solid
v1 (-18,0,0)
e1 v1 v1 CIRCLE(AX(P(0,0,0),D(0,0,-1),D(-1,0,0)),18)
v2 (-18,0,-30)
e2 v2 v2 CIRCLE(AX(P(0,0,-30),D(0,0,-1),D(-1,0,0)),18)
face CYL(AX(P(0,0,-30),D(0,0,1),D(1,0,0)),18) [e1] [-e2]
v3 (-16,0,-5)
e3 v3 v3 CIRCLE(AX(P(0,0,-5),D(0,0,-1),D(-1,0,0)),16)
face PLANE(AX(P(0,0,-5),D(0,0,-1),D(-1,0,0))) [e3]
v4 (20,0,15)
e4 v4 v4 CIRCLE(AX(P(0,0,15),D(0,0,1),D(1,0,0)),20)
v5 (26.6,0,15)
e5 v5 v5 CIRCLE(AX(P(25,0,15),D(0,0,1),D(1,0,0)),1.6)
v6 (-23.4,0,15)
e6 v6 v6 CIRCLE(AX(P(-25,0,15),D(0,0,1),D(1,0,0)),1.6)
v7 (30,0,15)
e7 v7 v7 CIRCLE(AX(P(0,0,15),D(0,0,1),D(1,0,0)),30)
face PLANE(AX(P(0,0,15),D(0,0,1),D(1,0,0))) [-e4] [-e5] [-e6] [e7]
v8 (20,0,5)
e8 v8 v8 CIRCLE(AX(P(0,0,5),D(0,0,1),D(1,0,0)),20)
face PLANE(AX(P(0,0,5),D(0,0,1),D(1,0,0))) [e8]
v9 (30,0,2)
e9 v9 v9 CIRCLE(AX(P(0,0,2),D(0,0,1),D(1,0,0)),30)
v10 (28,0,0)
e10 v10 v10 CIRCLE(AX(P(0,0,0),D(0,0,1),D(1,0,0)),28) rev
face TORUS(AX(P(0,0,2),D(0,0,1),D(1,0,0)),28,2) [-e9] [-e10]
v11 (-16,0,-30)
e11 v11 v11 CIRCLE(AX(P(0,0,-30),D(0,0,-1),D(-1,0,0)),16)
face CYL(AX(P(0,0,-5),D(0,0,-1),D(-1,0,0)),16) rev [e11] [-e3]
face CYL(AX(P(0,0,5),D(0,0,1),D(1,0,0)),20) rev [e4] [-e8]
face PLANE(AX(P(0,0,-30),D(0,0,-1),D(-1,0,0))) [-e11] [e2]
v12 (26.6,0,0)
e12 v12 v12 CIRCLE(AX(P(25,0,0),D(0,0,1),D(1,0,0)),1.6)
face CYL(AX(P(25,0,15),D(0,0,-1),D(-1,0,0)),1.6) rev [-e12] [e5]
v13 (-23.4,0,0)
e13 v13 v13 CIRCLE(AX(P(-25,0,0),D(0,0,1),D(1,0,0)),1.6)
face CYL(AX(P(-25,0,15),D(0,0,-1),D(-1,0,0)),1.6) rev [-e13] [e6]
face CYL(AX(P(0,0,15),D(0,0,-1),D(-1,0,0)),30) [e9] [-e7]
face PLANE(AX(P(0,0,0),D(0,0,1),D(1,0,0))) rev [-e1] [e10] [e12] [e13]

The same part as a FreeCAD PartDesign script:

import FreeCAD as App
import Part
import Sketcher

V = App.Vector


def edges_at(feature, points):
    """Names of the edges that pass closest to the given points."""
    edges = feature.Shape.Edges
    near = lambda p: min(range(len(edges)), key=lambda i: edges[i].distToShape(Part.Vertex(*p))[0])
    return sorted({f"Edge{near(p) + 1}" for p in points})

doc = App.newDocument("Part")
body = doc.addObject("PartDesign::Body", "Body")

sketch1 = doc.addObject("Sketcher::SketchObject", "Sketch")
body.addObject(sketch1)
sketch1.AttachmentSupport = (doc.XY_Plane, [""])
sketch1.MapMode = "FlatFace"
sketch1.addGeometry([
    Part.Circle(V(0, 0, 0), V(0, 0, 1), 30),
    Part.Circle(V(-25, 0, 0), V(0, 0, 1), 1.6),
    Part.Circle(V(25, 0, 0), V(0, 0, 1), 1.6),
], False)
sketch1.addConstraint([
    Sketcher.Constraint("Coincident", 0, 3, -1, 1),
    Sketcher.Constraint("Equal", 1, 2),
    Sketcher.Constraint("Symmetric", 1, 3, 2, 3, -1, 1),
    Sketcher.Constraint("PointOnObject", 1, 3, -1),
    Sketcher.Constraint("Diameter", 0, 60.0),
    Sketcher.Constraint("Diameter", 1, 3.2),
    Sketcher.Constraint("DistanceX", 1, 3, -1, 1, 25.0),
])
pad1 = doc.addObject("PartDesign::Pad", "Pad")
body.addObject(pad1)
pad1.Profile = sketch1
pad1.Length = 15

sketch2 = doc.addObject("Sketcher::SketchObject", "Sketch001")
body.addObject(sketch2)
sketch2.AttachmentSupport = (doc.XY_Plane, [""])
sketch2.MapMode = "FlatFace"
sketch2.AttachmentOffset = App.Placement(V(0, 0, 15), App.Rotation())
sketch2.addGeometry(Part.Circle(V(0, 0, 0), V(0, 0, 1), 20), False)
sketch2.addConstraint([
    Sketcher.Constraint("Coincident", 0, 3, -1, 1),
    Sketcher.Constraint("Diameter", 0, 40.0),
])
pocket1 = doc.addObject("PartDesign::Pocket", "Pocket")
body.addObject(pocket1)
pocket1.Profile = sketch2
pocket1.Length = 10

sketch3 = doc.addObject("Sketcher::SketchObject", "Sketch002")
body.addObject(sketch3)
sketch3.AttachmentSupport = (doc.XY_Plane, [""])
sketch3.MapMode = "FlatFace"
sketch3.addGeometry(Part.Circle(V(0, 0, 0), V(0, 0, 1), 18), False)
sketch3.addConstraint([
    Sketcher.Constraint("Coincident", 0, 3, -1, 1),
    Sketcher.Constraint("Diameter", 0, 36.0),
])
pad2 = doc.addObject("PartDesign::Pad", "Pad001")
body.addObject(pad2)
pad2.Profile = sketch3
pad2.Length = 30
pad2.Reversed = True

sketch4 = doc.addObject("Sketcher::SketchObject", "Sketch003")
body.addObject(sketch4)
sketch4.AttachmentSupport = (doc.XY_Plane, [""])
sketch4.MapMode = "FlatFace"
sketch4.AttachmentOffset = App.Placement(V(0, 0, -30), App.Rotation())
sketch4.addGeometry(Part.Circle(V(0, 0, 0), V(0, 0, 1), 16), False)
sketch4.addConstraint([
    Sketcher.Constraint("Coincident", 0, 3, -1, 1),
    Sketcher.Constraint("Diameter", 0, 32.0),
])
pocket2 = doc.addObject("PartDesign::Pocket", "Pocket001")
body.addObject(pocket2)
pocket2.Profile = sketch4
pocket2.Length = 25
pocket2.Reversed = True
doc.recompute()

fillet = doc.addObject("PartDesign::Fillet", "Fillet")
body.addObject(fillet)
fillet.Base = (pocket2, edges_at(pocket2, [(-30, 0, 0)]))
fillet.Radius = 2

doc.recompute()
